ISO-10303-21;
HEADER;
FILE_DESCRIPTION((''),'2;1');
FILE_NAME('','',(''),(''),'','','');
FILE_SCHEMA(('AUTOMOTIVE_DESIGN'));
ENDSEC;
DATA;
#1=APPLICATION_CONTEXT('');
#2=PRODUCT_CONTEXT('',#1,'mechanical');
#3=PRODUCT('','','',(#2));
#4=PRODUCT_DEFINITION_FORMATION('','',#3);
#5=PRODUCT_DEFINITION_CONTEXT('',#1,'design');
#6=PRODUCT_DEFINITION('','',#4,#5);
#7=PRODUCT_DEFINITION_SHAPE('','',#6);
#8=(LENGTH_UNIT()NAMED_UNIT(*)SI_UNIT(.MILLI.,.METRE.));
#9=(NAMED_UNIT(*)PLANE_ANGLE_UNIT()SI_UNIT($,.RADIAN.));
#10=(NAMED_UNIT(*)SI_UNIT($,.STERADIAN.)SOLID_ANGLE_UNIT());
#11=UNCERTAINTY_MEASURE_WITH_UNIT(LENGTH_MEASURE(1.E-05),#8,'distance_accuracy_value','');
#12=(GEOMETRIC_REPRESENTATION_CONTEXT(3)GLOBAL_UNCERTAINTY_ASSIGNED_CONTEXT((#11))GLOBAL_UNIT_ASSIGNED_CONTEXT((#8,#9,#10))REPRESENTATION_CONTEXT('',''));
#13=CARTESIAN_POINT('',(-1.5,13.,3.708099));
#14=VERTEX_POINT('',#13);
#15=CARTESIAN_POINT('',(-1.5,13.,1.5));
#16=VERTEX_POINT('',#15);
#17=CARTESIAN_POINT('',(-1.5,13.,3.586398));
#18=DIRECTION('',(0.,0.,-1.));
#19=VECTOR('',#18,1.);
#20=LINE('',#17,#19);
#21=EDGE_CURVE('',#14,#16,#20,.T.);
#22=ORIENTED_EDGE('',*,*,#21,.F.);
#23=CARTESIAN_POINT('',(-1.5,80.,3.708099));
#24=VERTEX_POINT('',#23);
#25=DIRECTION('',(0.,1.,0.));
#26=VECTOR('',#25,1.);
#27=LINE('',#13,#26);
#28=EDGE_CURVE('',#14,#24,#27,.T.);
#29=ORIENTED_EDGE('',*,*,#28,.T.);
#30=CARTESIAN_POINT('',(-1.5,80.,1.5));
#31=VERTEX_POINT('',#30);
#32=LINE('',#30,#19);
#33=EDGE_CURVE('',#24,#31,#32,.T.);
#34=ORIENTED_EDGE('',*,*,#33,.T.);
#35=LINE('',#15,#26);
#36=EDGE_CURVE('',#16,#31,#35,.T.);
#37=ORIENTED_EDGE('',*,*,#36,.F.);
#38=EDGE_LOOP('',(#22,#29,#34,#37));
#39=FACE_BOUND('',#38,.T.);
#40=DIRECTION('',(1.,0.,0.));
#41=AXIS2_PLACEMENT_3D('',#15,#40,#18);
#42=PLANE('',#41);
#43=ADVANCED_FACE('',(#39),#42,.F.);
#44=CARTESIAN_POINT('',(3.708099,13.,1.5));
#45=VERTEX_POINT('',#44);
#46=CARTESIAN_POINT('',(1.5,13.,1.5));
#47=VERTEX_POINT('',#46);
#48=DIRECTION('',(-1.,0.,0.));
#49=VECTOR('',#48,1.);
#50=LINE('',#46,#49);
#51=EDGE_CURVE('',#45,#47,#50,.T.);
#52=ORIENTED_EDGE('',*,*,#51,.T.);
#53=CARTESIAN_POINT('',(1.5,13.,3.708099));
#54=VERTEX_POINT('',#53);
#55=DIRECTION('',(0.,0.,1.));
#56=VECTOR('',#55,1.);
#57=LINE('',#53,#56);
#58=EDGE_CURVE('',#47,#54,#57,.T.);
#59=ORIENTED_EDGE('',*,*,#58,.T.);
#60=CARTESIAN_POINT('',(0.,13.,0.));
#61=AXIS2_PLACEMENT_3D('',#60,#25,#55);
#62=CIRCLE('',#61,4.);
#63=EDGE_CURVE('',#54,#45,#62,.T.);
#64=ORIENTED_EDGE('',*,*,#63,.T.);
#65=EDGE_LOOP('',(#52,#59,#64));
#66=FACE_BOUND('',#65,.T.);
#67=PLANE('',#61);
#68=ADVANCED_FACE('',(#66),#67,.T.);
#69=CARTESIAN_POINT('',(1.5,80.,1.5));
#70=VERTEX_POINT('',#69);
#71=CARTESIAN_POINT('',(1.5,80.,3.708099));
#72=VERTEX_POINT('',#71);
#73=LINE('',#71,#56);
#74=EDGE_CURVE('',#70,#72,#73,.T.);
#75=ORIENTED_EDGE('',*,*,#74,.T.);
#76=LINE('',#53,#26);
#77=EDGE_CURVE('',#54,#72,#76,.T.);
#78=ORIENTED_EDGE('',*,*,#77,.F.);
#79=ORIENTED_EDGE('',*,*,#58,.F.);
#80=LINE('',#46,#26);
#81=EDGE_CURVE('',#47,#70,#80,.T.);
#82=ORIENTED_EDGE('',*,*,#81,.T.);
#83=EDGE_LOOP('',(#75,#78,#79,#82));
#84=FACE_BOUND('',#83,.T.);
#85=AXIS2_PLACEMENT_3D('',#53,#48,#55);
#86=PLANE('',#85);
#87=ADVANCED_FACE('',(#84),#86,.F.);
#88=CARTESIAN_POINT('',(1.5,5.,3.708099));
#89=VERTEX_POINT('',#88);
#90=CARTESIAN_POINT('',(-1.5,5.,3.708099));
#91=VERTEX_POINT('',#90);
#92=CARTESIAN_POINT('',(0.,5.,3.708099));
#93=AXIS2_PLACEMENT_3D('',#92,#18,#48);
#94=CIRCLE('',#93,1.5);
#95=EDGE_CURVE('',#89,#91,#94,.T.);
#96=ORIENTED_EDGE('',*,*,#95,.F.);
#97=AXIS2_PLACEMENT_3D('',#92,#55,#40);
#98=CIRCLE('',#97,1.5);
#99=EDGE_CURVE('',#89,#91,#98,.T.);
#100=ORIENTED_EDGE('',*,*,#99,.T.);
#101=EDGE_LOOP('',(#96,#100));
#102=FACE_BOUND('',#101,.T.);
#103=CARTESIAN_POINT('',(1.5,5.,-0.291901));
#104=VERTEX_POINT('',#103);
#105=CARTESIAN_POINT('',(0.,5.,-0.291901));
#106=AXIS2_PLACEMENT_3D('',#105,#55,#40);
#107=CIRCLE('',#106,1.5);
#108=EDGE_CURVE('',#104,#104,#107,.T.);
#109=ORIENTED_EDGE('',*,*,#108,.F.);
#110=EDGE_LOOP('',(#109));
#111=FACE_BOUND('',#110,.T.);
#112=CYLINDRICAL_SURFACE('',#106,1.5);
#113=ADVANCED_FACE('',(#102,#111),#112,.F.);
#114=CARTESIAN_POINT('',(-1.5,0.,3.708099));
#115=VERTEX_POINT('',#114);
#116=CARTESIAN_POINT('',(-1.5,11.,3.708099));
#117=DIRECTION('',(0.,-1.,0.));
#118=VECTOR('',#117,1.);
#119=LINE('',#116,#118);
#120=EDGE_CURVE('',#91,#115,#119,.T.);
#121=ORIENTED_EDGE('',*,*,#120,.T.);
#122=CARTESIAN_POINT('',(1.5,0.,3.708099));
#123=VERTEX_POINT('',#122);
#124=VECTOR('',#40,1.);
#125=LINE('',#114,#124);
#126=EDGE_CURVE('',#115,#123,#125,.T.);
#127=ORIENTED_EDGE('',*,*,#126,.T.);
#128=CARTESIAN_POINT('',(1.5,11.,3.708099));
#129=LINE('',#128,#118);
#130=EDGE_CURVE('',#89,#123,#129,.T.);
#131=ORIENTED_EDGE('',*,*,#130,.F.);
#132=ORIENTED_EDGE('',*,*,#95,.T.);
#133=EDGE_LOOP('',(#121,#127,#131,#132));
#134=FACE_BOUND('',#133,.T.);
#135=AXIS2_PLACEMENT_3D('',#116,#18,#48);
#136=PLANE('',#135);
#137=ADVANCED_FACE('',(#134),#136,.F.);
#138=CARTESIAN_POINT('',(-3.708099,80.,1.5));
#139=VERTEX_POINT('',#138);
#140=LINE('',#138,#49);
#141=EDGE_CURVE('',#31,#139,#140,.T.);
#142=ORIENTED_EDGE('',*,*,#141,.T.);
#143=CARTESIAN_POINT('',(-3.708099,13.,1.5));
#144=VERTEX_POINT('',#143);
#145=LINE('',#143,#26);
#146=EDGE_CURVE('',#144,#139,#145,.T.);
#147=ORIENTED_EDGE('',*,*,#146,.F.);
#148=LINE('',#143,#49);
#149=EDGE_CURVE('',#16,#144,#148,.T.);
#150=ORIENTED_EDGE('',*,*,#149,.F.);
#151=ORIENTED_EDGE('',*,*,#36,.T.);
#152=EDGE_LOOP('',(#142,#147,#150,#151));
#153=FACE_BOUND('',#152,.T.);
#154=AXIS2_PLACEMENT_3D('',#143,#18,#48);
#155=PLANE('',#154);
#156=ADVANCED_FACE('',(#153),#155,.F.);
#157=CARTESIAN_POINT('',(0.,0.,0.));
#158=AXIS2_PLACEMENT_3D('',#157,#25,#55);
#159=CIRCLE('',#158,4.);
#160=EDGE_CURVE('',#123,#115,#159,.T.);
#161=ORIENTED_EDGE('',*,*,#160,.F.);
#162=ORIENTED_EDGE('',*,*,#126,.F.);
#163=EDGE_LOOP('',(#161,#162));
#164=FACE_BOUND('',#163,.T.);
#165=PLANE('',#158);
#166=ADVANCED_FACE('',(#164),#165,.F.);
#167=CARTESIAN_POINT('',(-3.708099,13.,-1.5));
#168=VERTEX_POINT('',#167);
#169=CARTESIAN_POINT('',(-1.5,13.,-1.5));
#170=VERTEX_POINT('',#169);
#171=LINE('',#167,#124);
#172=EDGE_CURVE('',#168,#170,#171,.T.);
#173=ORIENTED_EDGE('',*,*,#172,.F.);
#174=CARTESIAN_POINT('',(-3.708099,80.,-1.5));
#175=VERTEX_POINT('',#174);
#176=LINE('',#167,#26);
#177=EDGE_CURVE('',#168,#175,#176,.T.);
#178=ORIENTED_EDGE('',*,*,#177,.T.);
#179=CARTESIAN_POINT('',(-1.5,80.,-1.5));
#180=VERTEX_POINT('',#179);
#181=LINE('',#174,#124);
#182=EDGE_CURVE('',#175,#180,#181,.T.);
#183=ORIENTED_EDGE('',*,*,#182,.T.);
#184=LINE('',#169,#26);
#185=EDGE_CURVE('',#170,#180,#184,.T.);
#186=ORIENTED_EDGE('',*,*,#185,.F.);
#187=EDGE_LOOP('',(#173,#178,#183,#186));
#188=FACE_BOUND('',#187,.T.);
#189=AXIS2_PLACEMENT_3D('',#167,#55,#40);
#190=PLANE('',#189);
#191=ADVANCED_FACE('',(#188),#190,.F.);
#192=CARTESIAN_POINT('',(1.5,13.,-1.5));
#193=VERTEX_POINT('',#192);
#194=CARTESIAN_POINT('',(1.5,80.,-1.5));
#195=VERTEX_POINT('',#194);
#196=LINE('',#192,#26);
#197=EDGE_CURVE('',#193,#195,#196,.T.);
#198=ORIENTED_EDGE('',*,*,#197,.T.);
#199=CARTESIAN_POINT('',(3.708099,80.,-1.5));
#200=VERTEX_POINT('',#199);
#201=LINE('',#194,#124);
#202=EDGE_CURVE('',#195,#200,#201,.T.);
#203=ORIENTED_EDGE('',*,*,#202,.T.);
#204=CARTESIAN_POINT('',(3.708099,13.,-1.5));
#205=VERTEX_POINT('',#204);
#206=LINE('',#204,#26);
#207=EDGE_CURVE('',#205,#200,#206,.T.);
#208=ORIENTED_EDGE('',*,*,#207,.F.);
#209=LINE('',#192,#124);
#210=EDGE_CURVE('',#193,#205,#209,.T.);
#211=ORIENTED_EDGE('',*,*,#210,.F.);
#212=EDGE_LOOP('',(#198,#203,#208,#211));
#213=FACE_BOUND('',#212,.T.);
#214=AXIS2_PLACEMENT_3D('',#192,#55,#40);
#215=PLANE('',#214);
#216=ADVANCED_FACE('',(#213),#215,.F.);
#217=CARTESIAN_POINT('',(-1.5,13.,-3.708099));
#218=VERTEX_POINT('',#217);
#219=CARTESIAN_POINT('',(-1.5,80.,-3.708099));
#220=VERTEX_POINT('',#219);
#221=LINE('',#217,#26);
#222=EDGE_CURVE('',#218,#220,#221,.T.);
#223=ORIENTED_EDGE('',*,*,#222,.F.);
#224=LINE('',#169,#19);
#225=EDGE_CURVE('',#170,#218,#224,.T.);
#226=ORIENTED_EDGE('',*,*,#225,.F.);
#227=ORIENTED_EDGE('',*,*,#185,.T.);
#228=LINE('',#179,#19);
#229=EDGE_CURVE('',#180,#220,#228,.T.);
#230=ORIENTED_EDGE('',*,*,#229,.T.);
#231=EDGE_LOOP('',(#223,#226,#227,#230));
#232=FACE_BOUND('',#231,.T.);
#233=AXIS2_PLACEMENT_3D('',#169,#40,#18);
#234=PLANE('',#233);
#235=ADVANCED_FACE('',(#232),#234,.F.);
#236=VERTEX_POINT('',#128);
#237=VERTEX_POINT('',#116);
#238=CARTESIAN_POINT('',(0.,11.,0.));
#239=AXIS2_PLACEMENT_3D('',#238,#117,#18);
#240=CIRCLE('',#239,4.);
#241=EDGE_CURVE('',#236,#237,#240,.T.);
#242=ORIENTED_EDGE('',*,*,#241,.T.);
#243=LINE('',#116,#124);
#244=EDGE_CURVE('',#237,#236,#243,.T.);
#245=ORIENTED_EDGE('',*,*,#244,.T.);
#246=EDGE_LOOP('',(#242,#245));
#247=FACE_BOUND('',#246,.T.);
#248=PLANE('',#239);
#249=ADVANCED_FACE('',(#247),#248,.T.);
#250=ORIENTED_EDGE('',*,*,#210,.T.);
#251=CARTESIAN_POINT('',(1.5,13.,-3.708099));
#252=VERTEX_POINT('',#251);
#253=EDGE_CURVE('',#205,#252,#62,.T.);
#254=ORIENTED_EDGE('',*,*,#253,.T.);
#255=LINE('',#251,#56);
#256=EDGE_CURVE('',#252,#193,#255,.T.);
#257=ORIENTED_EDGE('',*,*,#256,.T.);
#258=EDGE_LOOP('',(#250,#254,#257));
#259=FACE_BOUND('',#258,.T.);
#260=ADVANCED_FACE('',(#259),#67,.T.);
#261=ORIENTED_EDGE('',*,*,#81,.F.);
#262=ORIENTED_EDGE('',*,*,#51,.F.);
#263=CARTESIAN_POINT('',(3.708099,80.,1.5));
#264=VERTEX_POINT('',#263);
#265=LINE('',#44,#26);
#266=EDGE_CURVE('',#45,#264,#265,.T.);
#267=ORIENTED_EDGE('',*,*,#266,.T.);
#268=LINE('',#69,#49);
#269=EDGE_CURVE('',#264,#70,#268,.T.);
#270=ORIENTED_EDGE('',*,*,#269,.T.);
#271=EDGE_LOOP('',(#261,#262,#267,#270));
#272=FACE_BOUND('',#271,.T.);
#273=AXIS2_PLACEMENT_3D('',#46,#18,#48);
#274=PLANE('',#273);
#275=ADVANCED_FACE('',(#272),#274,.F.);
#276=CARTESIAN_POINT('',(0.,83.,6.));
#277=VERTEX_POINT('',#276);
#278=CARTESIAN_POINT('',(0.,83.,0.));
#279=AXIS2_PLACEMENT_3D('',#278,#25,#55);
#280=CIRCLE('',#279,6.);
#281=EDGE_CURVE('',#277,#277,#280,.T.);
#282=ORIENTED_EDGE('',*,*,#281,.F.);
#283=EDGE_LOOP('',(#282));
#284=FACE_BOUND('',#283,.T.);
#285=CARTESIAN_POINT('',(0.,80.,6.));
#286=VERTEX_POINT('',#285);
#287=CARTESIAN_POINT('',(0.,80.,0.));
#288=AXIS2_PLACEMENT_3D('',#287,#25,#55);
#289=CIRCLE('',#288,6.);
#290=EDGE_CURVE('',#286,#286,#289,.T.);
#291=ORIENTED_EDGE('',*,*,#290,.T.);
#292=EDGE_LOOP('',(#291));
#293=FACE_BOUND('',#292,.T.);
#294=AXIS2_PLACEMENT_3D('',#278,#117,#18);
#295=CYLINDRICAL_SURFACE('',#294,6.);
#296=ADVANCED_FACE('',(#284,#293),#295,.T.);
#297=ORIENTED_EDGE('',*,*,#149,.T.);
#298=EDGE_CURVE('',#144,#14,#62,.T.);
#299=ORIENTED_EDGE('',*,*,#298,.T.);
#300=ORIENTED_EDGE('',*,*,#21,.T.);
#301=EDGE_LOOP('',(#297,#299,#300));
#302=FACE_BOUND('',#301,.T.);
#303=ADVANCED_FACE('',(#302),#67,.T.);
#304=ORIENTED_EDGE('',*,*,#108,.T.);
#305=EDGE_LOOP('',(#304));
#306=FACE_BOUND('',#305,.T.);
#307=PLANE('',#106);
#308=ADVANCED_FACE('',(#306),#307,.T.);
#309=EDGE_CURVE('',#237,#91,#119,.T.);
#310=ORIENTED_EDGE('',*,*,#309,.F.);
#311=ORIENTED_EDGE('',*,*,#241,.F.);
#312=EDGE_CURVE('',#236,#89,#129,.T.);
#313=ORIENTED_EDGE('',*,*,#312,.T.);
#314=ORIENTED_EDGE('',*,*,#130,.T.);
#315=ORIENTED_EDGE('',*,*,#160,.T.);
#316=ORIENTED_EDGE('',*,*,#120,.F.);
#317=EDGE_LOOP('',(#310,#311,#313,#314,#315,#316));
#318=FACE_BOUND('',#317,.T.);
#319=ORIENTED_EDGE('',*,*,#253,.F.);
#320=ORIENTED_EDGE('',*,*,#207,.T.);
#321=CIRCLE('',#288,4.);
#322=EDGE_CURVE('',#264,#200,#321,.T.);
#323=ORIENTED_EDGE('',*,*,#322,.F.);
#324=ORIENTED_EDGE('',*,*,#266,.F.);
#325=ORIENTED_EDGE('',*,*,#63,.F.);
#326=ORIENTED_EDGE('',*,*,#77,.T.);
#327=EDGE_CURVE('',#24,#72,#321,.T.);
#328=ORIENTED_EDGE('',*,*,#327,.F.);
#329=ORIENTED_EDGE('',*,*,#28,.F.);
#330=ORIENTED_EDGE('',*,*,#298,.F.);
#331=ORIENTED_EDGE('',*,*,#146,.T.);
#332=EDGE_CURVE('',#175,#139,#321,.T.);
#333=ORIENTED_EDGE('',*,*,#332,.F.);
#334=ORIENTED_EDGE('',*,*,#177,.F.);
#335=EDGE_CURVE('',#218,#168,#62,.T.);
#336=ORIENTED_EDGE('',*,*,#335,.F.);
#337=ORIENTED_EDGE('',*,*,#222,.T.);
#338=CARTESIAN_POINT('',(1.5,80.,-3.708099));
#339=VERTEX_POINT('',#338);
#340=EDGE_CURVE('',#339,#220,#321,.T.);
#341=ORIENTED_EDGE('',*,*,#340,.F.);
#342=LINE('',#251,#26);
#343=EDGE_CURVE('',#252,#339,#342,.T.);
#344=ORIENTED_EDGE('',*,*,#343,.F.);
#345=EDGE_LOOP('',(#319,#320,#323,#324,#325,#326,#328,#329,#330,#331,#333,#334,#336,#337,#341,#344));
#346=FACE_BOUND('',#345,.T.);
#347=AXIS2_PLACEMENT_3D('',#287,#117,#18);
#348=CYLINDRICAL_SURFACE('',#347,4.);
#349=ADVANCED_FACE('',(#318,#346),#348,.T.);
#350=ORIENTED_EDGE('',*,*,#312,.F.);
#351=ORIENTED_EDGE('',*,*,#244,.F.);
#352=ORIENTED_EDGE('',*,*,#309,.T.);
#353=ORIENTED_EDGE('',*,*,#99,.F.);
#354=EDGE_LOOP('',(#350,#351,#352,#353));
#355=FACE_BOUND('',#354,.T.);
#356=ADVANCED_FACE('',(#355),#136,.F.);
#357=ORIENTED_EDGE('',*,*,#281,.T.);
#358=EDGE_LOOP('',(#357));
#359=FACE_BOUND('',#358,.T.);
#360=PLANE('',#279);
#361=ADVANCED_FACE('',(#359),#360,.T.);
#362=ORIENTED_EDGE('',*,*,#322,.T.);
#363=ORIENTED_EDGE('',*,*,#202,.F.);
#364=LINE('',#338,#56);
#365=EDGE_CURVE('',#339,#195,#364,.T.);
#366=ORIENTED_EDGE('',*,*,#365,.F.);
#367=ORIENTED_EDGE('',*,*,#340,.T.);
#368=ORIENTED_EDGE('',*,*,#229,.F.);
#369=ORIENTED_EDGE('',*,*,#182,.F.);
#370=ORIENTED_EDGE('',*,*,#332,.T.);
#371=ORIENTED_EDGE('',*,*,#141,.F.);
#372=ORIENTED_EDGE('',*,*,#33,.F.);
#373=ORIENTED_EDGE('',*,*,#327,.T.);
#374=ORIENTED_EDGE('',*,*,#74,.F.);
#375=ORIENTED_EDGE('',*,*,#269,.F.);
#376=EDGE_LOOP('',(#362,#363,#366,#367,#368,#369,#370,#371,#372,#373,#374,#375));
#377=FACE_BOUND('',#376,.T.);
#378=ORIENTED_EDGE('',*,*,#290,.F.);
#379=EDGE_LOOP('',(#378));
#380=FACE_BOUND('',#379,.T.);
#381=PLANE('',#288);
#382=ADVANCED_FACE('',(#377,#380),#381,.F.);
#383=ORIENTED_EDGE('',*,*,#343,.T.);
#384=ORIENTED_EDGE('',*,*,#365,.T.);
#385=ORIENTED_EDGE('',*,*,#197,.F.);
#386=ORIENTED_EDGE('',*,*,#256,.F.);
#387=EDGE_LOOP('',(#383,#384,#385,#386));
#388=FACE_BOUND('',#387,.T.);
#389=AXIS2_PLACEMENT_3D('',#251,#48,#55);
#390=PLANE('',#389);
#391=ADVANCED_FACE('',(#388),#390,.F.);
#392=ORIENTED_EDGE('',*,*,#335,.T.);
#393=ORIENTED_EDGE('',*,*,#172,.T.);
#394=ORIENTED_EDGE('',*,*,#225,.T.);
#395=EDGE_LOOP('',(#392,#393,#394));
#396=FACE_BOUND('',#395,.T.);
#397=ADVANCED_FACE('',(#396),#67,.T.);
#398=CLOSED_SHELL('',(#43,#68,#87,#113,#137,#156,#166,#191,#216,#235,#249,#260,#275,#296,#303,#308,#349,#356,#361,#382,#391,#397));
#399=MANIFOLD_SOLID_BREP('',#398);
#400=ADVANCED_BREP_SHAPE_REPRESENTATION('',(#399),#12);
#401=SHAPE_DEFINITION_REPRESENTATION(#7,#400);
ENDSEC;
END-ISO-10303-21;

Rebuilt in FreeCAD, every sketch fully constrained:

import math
import FreeCAD as App
import Part
import Sketcher

V = App.Vector
Q = App.Units.Quantity

doc = App.newDocument("Part")
body = doc.addObject("PartDesign::Body", "Body")

# Sketch on XZ plane
sketch1 = doc.addObject("Sketcher::SketchObject", "Sketch")
body.addObject(sketch1)
sketch1.AttachmentSupport = (doc.XZ_Plane, [""])
sketch1.MapMode = "FlatFace"
sketch1.addGeometry(Part.Circle(V(0, 0, 0), V(0, 0, 1), 4), False)
sketch1.addConstraint([
    Sketcher.Constraint("Coincident", 0, 3, -1, 1),
    Sketcher.Constraint("Diameter", 0, Q("8 mm")),
])
pad1 = doc.addObject("PartDesign::Pad", "Pad")
body.addObject(pad1)
pad1.Profile = sketch1
pad1.Length = 80
pad1.Reversed = True

# Sketch on XZ plane
sketch2 = doc.addObject("Sketcher::SketchObject", "Sketch001")
body.addObject(sketch2)
sketch2.AttachmentSupport = (doc.XZ_Plane, [""])
sketch2.MapMode = "FlatFace"
sketch2.addGeometry([
    Part.LineSegment(V(-1.5, 3.7, 0), V(1.5, 3.7, 0)),
    Part.ArcOfCircle(Part.Circle(V(0, 0, 0), V(0, 0, 1), 4), math.radians(68), math.radians(112)),
], False)
sketch2.addConstraint([
    Sketcher.Constraint("Coincident", 0, 1, 1, 2),
    Sketcher.Constraint("Coincident", 1, 1, 0, 2),
    Sketcher.Constraint("Horizontal", 0),
    Sketcher.Constraint("Coincident", 1, 3, -1, 1),
    Sketcher.Constraint("Radius", 1, Q("4 mm")),
    Sketcher.Constraint("DistanceX", 0, 1, 0, 2, Q("3 mm")),
])
pocket1 = doc.addObject("PartDesign::Pocket", "Pocket")
body.addObject(pocket1)
pocket1.Profile = sketch2
pocket1.Length = 11

# Sketch on XY plane
sketch3 = doc.addObject("Sketcher::SketchObject", "Sketch002")
body.addObject(sketch3)
sketch3.AttachmentSupport = (doc.XY_Plane, [""])
sketch3.MapMode = "FlatFace"
sketch3.AttachmentOffset = App.Placement(V(0, 0, 3.708099), App.Rotation())
sketch3.addGeometry(Part.Circle(V(0, 5, 0), V(0, 0, 1), 1.5), False)
sketch3.addConstraint([
    Sketcher.Constraint("PointOnObject", 0, 3, -2),
    Sketcher.Constraint("Diameter", 0, Q("3 mm")),
    Sketcher.Constraint("DistanceY", -1, 1, 0, 3, Q("5 mm")),
])
pocket2 = doc.addObject("PartDesign::Pocket", "Pocket001")
body.addObject(pocket2)
pocket2.Profile = sketch3
pocket2.Length = 4

# Sketch on XZ plane
sketch4 = doc.addObject("Sketcher::SketchObject", "Sketch003")
body.addObject(sketch4)
sketch4.AttachmentSupport = (doc.XZ_Plane, [""])
sketch4.MapMode = "FlatFace"
sketch4.AttachmentOffset = App.Placement(V(0, 0, -80), App.Rotation())
sketch4.addGeometry([
    Part.ArcOfCircle(Part.Circle(V(0, 0, 0), V(0, 0, 1), 4), math.radians(112), math.radians(158)),  # 0
    Part.LineSegment(V(-1.5, 3.7, 0), V(-1.5, 1.5, 0)),  # 1
    Part.LineSegment(V(-1.5, 1.5, 0), V(-3.7, 1.5, 0)),  # 2
    Part.LineSegment(V(-3.7, -1.5, 0), V(-1.5, -1.5, 0)),  # 3
    Part.LineSegment(V(-1.5, -1.5, 0), V(-1.5, -3.7, 0)),  # 4
    Part.ArcOfCircle(Part.Circle(V(0, 0, 0), V(0, 0, 1), 4), math.radians(-158), math.radians(-112)),  # 5
    Part.LineSegment(V(1.5, -3.7, 0), V(1.5, -1.5, 0)),  # 6
    Part.LineSegment(V(1.5, -1.5, 0), V(3.7, -1.5, 0)),  # 7
    Part.ArcOfCircle(Part.Circle(V(0, 0, 0), V(0, 0, 1), 4), math.radians(-68), math.radians(-22)),  # 8
    Part.LineSegment(V(1.5, 1.5, 0), V(1.5, 3.7, 0)),  # 9
    Part.ArcOfCircle(Part.Circle(V(0, 0, 0), V(0, 0, 1), 4), math.radians(22), math.radians(68)),  # 10
    Part.LineSegment(V(3.7, 1.5, 0), V(1.5, 1.5, 0)),  # 11
], False)
sketch4.addConstraint([
    Sketcher.Constraint("Coincident", 0, 1, 1, 1),
    Sketcher.Constraint("Coincident", 1, 2, 2, 1),
    Sketcher.Constraint("Coincident", 2, 2, 0, 2),
    Sketcher.Constraint("Coincident", 3, 2, 4, 1),
    Sketcher.Constraint("Coincident", 4, 2, 5, 2),
    Sketcher.Constraint("Coincident", 5, 1, 3, 1),
    Sketcher.Constraint("Coincident", 6, 2, 7, 1),
    Sketcher.Constraint("Coincident", 7, 2, 8, 2),
    Sketcher.Constraint("Coincident", 8, 1, 6, 1),
    Sketcher.Constraint("Coincident", 9, 2, 10, 2),
    Sketcher.Constraint("Coincident", 10, 1, 11, 1),
    Sketcher.Constraint("Coincident", 11, 2, 9, 1),
    Sketcher.Constraint("Vertical", 1),
    Sketcher.Constraint("Horizontal", 2),
    Sketcher.Constraint("Horizontal", 3),
    Sketcher.Constraint("Vertical", 4),
    Sketcher.Constraint("Vertical", 6),
    Sketcher.Constraint("Horizontal", 7),
    Sketcher.Constraint("Vertical", 9),
    Sketcher.Constraint("Horizontal", 11),
    Sketcher.Constraint("Coincident", 0, 3, -1, 1),
    Sketcher.Constraint("Coincident", 5, 3, -1, 1),
    Sketcher.Constraint("Coincident", 8, 3, -1, 1),
    Sketcher.Constraint("Coincident", 10, 3, -1, 1),
    Sketcher.Constraint("Equal", 0, 5),
    Sketcher.Constraint("Equal", 5, 8),
    Sketcher.Constraint("Equal", 8, 10),
    Sketcher.Constraint("Symmetric", 1, 2, 6, 2, -1, 1),
    Sketcher.Constraint("Symmetric", 3, 2, 11, 2, -1, 1),
    Sketcher.Constraint("Symmetric", 3, 2, 6, 2, -2),
    Sketcher.Constraint("Equal", 11, 1),
    Sketcher.Constraint("Radius", 0, Q("4 mm")),
    Sketcher.Constraint("DistanceY", 3, 2, 1, 2, Q("3 mm")),
])
pocket3 = doc.addObject("PartDesign::Pocket", "Pocket002")
body.addObject(pocket3)
pocket3.Profile = sketch4
pocket3.Length = 67
pocket3.Reversed = True

# Sketch on XZ plane
sketch5 = doc.addObject("Sketcher::SketchObject", "Sketch004")
body.addObject(sketch5)
sketch5.AttachmentSupport = (doc.XZ_Plane, [""])
sketch5.MapMode = "FlatFace"
sketch5.AttachmentOffset = App.Placement(V(0, 0, -80), App.Rotation())
sketch5.addGeometry(Part.Circle(V(0, 0, 0), V(0, 0, 1), 6), False)
sketch5.addConstraint([
    Sketcher.Constraint("Coincident", 0, 3, -1, 1),
    Sketcher.Constraint("Diameter", 0, Q("12 mm")),
])
pad2 = doc.addObject("PartDesign::Pad", "Pad001")
body.addObject(pad2)
pad2.Profile = sketch5
pad2.Length = 3
pad2.Reversed = True

doc.recompute()
